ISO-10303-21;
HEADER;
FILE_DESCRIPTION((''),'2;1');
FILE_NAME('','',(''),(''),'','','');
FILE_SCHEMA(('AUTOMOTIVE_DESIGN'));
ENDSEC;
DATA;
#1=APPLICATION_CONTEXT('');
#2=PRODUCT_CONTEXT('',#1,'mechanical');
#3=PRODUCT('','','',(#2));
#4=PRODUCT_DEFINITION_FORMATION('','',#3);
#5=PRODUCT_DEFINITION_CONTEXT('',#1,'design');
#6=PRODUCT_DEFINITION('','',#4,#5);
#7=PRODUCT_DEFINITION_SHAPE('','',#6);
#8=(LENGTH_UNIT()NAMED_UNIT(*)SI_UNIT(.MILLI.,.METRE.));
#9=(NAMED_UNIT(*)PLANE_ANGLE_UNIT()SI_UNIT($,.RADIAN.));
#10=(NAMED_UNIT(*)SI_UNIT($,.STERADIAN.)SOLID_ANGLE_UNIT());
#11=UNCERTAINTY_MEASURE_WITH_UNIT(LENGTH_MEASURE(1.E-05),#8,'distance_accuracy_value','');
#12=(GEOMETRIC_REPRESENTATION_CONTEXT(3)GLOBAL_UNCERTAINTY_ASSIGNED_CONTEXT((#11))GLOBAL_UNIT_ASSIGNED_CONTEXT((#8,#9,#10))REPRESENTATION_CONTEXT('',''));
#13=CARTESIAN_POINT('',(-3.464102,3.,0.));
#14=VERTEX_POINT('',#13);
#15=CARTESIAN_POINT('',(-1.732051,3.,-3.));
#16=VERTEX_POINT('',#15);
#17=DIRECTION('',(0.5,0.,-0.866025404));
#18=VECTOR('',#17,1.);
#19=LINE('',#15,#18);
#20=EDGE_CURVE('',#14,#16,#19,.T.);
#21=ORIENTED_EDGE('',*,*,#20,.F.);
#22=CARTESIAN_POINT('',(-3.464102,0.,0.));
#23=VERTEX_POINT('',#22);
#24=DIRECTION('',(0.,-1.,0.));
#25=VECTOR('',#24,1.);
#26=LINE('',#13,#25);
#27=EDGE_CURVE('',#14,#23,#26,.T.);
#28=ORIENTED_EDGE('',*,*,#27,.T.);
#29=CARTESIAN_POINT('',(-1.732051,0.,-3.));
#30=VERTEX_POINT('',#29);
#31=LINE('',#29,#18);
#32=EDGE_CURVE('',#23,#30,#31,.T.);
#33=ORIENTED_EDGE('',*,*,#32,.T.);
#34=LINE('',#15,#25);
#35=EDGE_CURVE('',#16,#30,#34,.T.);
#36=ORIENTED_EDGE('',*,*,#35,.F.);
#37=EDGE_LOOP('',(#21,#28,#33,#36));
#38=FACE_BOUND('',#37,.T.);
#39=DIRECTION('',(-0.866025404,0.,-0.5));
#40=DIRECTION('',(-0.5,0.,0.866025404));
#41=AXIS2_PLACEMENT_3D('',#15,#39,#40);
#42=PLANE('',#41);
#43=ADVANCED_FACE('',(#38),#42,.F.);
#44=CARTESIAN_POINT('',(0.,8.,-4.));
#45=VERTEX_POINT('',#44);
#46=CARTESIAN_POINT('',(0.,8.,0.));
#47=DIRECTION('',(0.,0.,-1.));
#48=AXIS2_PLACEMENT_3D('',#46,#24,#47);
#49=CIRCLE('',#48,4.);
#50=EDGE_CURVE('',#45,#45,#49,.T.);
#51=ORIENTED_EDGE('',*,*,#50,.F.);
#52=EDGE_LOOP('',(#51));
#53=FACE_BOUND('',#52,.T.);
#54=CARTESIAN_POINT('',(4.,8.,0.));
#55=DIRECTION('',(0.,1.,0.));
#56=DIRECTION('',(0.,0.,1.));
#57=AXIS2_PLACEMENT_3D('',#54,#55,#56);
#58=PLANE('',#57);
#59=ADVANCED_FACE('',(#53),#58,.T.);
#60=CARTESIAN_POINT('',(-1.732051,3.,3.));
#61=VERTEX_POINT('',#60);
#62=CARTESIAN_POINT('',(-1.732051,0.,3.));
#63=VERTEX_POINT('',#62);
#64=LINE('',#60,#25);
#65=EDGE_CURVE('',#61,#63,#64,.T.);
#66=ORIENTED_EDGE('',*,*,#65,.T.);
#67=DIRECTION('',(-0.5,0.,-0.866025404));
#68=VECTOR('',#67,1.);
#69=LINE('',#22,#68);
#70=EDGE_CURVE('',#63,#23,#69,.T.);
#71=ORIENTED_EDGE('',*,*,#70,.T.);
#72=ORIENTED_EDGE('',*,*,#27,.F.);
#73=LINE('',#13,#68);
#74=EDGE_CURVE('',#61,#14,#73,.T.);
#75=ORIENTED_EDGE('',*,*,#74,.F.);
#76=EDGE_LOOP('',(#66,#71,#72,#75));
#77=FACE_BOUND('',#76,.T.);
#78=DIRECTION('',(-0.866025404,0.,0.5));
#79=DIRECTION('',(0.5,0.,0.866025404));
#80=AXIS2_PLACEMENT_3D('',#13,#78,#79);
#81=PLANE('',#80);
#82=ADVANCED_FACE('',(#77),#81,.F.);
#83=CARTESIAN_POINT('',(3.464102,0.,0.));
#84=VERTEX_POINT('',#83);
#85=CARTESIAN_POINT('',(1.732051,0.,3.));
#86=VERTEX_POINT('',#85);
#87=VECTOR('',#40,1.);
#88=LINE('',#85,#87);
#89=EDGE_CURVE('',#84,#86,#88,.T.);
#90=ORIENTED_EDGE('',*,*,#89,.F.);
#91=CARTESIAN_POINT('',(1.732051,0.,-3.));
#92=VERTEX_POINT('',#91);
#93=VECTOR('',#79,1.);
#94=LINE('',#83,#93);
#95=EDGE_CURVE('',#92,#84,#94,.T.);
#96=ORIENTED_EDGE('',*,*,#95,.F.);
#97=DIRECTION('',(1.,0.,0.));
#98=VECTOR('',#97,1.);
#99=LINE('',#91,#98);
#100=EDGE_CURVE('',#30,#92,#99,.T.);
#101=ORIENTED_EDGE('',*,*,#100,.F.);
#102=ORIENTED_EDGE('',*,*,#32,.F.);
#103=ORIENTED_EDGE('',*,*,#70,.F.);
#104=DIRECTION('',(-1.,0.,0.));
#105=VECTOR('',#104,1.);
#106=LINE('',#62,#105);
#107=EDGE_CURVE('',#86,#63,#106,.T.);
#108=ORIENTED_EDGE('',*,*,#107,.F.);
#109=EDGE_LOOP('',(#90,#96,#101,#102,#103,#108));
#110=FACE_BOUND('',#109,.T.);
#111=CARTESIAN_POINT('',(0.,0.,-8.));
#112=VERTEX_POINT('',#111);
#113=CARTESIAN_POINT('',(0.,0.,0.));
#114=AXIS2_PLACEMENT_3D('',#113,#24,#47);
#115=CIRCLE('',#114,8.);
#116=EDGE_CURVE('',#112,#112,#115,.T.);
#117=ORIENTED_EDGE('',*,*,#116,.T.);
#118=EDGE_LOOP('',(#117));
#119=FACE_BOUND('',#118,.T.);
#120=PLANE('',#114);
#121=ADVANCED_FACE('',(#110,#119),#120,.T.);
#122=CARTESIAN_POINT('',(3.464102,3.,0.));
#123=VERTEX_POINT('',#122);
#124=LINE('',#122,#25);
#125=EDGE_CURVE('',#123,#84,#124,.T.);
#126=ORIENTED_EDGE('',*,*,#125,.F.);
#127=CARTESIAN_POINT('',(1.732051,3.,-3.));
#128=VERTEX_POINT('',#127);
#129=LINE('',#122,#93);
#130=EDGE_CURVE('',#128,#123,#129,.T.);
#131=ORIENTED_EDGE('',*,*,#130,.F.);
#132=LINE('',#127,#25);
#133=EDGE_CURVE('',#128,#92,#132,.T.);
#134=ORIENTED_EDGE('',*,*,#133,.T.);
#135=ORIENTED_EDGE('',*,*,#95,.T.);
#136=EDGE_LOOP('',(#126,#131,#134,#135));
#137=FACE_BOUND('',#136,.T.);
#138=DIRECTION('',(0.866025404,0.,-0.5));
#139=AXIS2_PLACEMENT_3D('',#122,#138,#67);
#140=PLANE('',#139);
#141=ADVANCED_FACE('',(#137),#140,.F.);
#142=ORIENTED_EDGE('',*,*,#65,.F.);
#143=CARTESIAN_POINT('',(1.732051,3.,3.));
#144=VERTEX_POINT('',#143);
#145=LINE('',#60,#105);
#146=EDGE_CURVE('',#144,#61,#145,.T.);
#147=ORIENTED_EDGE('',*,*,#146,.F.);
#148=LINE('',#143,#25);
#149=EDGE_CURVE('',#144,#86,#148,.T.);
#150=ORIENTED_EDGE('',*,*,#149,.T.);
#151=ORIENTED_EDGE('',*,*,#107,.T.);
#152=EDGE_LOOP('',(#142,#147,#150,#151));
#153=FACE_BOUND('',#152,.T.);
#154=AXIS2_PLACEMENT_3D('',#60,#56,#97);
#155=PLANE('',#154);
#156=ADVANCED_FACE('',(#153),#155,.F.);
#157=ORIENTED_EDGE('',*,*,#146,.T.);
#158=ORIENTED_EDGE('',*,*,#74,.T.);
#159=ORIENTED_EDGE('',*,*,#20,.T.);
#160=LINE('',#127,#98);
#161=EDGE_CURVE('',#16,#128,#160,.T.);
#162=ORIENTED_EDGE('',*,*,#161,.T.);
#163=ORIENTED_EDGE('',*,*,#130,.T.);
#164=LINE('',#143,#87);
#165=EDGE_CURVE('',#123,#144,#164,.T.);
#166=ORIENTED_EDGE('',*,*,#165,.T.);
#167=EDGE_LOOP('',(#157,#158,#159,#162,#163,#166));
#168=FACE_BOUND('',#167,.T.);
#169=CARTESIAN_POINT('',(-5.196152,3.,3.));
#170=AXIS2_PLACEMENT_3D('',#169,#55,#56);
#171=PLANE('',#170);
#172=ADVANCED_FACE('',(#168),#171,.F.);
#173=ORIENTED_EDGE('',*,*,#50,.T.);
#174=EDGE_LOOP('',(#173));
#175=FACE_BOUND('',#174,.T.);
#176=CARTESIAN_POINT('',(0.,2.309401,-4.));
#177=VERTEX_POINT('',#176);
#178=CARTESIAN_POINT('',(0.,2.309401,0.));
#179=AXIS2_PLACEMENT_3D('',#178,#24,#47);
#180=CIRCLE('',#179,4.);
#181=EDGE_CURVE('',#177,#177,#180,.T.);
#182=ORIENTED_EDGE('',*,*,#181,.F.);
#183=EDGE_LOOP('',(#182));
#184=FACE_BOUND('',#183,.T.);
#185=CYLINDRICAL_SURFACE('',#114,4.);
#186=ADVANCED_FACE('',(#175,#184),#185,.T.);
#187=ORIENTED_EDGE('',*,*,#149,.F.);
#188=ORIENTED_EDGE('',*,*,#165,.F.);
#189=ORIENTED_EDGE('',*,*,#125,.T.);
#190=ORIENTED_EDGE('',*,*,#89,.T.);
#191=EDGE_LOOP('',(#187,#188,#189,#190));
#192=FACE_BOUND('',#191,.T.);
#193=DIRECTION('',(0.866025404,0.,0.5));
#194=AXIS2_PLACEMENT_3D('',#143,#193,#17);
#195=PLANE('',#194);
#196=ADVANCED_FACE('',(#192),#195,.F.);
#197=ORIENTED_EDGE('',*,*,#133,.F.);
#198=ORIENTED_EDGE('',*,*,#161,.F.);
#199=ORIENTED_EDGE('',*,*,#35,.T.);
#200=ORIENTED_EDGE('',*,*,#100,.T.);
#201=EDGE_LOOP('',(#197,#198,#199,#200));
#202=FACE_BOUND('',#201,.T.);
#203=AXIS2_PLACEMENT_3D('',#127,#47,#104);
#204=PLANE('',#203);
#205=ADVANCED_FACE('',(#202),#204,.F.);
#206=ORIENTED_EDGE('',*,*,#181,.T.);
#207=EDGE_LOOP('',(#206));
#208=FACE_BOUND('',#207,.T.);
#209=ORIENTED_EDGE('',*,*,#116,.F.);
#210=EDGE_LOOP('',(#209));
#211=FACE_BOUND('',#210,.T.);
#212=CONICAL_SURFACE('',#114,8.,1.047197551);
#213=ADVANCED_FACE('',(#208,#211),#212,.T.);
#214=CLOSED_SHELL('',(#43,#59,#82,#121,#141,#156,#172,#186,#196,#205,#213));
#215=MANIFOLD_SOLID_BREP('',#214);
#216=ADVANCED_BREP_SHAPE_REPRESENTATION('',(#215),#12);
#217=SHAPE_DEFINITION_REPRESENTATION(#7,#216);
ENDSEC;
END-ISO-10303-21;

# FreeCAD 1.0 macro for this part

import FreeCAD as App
import Part
import Sketcher
Q = App.Units.Quantity

doc = App.newDocument("Part")
params = doc.addObject("Spreadsheet::Sheet", "Params")
for row, (alias, value) in enumerate([
    ("sketch1_width", "8 mm"),
    ("sketch1_width2", "4 mm"),
    ("revolution_angle", "360 deg"),
    ("pocket1_length", "3 mm"),
], start=1):
    params.set(f"A{row}", alias)
    params.set(f"B{row}", "=" + value)
    params.setAlias(f"B{row}", alias)

body = doc.addObject("PartDesign::Body", "Body")

# Sketch on XY plane
sketch1 = doc.addObject("Sketcher::SketchObject", "Sketch")
body.addObject(sketch1)
sketch1.AttachmentSupport = (doc.XY_Plane, [""])
sketch1.MapMode = "FlatFace"
sketch1.addGeometry([
    Part.LineSegment(App.Vector(0, 0, 0), App.Vector(8, 0, 0)),  # 0
    Part.LineSegment(App.Vector(8, 0, 0), App.Vector(4, 2.309401, 0)),  # 1
    Part.LineSegment(App.Vector(4, 2.309401, 0), App.Vector(4, 8, 0)),  # 2
    Part.LineSegment(App.Vector(4, 8, 0), App.Vector(0, 8, 0)),  # 3
    Part.LineSegment(App.Vector(0, 8, 0), App.Vector(0, 0, 0)),  # 4
], False)
sketch1.addConstraint([
    Sketcher.Constraint("Coincident", 0, 2, 1, 1),
    Sketcher.Constraint("Coincident", 1, 2, 2, 1),
    Sketcher.Constraint("Coincident", 2, 2, 3, 1),
    Sketcher.Constraint("Coincident", 3, 2, 4, 1),
    Sketcher.Constraint("Coincident", 4, 2, 0, 1),
    Sketcher.Constraint("Horizontal", 0),
    Sketcher.Constraint("Vertical", 2),
    Sketcher.Constraint("Horizontal", 3),
    Sketcher.Constraint("Vertical", 4),
    Sketcher.Constraint("Coincident", 4, 2, -1, 1),
    Sketcher.Constraint("Equal", 0, 4),
    Sketcher.Constraint("DistanceX", 0, 1, 0, 2, 8.0),
    Sketcher.Constraint("DistanceX", 3, 2, 3, 1, 4.0),
    Sketcher.Constraint("Angle", 1, Q("150 deg")),
])
sketch1.setExpression("Constraints[11]", "Params.sketch1_width")
sketch1.setExpression("Constraints[12]", "Params.sketch1_width2")
revolution = doc.addObject("PartDesign::Revolution", "Revolution")
body.addObject(revolution)
revolution.Profile = sketch1
revolution.ReferenceAxis = (sketch1, ["V_Axis"])
revolution.setExpression("Angle", "Params.revolution_angle")

# Sketch on XZ plane
sketch2 = doc.addObject("Sketcher::SketchObject", "Sketch001")
body.addObject(sketch2)
sketch2.AttachmentSupport = (doc.XZ_Plane, [""])
sketch2.MapMode = "FlatFace"
sketch2.addGeometry([
    Part.LineSegment(App.Vector(-1.732051, 3, 0), App.Vector(-3.464102, 0, 0)),  # 0
    Part.LineSegment(App.Vector(-3.464102, 0, 0), App.Vector(-1.732051, -3, 0)),  # 1
    Part.LineSegment(App.Vector(-1.732051, -3, 0), App.Vector(1.732051, -3, 0)),  # 2
    Part.LineSegment(App.Vector(1.732051, -3, 0), App.Vector(3.464102, 0, 0)),  # 3
    Part.LineSegment(App.Vector(3.464102, 0, 0), App.Vector(1.732051, 3, 0)),  # 4
    Part.LineSegment(App.Vector(1.732051, 3, 0), App.Vector(-1.732051, 3, 0)),  # 5
], False)
sketch2.addConstraint([
    Sketcher.Constraint("Coincident", 0, 2, 1, 1),
    Sketcher.Constraint("Coincident", 1, 2, 2, 1),
    Sketcher.Constraint("Coincident", 2, 2, 3, 1),
    Sketcher.Constraint("Coincident", 3, 2, 4, 1),
    Sketcher.Constraint("Coincident", 4, 2, 5, 1),
    Sketcher.Constraint("Coincident", 5, 2, 0, 1),
    Sketcher.Constraint("Horizontal", 2),
    Sketcher.Constraint("Horizontal", 5),
    Sketcher.Constraint("Symmetric", 0, 2, 3, 2, -1, 1),
    Sketcher.Constraint("Symmetric", 1, 2, 4, 2, -1, 1),
    Sketcher.Constraint("PointOnObject", 0, 2, -1),
    Sketcher.Constraint("Parallel", 0, 3),
    Sketcher.Constraint("Vertical", 2, 2, 4, 2),
    Sketcher.Constraint("Angle", 0, Q("-120 deg")),
    Sketcher.Constraint("DistanceY", 1, 2, -1, 1, 3.0),
    Sketcher.Constraint("DistanceX", 2, 1, 2, 2, 3.464102),
])
pocket1 = doc.addObject("PartDesign::Pocket", "Pocket")
body.addObject(pocket1)
pocket1.Profile = sketch2
pocket1.setExpression("Length", "Params.pocket1_length")

doc.recompute()
